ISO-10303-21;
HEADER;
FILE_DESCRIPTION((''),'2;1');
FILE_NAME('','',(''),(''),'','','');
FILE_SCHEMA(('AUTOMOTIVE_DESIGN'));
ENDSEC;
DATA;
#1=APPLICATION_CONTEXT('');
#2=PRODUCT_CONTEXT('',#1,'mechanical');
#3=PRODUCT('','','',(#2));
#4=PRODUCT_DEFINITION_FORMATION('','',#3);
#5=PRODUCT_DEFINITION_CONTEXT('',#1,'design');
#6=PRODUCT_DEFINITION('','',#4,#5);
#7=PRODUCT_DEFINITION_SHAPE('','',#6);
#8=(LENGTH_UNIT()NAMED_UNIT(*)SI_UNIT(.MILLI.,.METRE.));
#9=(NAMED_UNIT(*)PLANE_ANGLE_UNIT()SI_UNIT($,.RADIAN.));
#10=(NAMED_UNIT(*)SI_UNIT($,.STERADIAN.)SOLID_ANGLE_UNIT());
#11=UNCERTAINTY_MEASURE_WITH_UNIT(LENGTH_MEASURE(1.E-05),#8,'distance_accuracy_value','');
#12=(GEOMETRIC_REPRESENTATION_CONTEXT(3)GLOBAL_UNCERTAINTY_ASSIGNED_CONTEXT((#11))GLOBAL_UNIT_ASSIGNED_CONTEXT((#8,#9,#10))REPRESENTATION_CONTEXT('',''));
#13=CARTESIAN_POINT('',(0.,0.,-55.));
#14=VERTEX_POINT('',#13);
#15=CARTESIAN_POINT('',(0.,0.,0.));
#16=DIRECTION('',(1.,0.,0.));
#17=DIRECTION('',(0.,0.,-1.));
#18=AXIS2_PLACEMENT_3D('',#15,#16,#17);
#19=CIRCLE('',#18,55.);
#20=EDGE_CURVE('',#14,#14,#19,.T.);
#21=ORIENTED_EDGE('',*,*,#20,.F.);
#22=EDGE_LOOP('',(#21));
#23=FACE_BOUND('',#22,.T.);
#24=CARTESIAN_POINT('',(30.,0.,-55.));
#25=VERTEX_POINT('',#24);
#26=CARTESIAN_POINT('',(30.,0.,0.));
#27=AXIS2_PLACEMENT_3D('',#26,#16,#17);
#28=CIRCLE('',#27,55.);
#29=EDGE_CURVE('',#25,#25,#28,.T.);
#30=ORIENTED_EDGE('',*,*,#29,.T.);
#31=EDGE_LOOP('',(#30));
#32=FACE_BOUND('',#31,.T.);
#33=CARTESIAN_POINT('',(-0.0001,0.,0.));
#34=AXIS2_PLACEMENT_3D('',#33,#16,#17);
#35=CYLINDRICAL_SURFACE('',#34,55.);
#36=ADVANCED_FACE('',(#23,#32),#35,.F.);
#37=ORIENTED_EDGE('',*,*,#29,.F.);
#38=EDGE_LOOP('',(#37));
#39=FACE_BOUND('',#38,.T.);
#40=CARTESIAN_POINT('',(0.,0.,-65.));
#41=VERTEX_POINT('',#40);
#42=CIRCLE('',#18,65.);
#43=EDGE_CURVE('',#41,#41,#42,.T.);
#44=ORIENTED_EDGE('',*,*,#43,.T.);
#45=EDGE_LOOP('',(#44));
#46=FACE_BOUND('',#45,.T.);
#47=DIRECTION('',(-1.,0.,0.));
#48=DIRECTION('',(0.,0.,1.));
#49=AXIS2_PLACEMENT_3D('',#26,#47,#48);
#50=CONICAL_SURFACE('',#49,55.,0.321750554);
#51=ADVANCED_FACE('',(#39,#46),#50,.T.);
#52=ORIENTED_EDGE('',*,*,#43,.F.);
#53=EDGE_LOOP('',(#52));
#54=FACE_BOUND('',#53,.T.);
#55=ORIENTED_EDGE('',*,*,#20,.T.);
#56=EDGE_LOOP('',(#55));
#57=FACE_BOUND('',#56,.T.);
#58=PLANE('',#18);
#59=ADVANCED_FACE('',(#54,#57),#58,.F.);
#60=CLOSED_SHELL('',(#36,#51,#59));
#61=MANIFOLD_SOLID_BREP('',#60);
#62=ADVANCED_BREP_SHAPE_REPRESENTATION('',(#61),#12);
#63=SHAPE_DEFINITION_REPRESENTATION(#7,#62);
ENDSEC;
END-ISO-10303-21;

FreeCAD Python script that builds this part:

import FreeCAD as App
import Part
import Sketcher

doc = App.newDocument("Part")
params = doc.addObject("Spreadsheet::Sheet", "Params")
for row, (alias, value) in enumerate([
    ("sketch1_diameter", "130 mm"),
    ("sketch2_diameter", "110 mm"),
    ("sketch3_diameter", "110 mm"),
], start=1):
    params.set(f"A{row}", alias)
    params.set(f"B{row}", "=" + value)
    params.setAlias(f"B{row}", alias)

body = doc.addObject("PartDesign::Body", "Body")

# Sketch on YZ plane
sketch1 = body.newObject("Sketcher::SketchObject", "Sketch")
sketch1.AttachmentSupport = (doc.getObject("YZ_Plane"), [""])
sketch1.MapMode = "FlatFace"
sketch1.addGeometry(Part.Circle(App.Vector(0, 0, 0), App.Vector(0, 0, 1), 65), False)
sketch1.addConstraint(Sketcher.Constraint("Coincident", 0, 3, -1, 1))
sketch1.addConstraint(Sketcher.Constraint("Diameter", 0, 130.0))
sketch1.setExpression("Constraints[1]", "Params.sketch1_diameter")

# Sketch on YZ plane
sketch2 = body.newObject("Sketcher::SketchObject", "Sketch001")
sketch2.AttachmentSupport = (doc.getObject("YZ_Plane"), [""])
sketch2.MapMode = "FlatFace"
sketch2.AttachmentOffset = App.Placement(App.Vector(0, 0, 30), App.Rotation())
sketch2.addGeometry(Part.Circle(App.Vector(0, 0, 0), App.Vector(0, 0, 1), 55), False)
sketch2.addConstraint(Sketcher.Constraint("Coincident", 0, 3, -1, 1))
sketch2.addConstraint(Sketcher.Constraint("Diameter", 0, 110.0))
sketch2.setExpression("Constraints[1]", "Params.sketch2_diameter")

additiveloft = body.newObject("PartDesign::AdditiveLoft", "AdditiveLoft")
additiveloft.Profile = sketch1
additiveloft.Sections = [sketch2]

# Sketch on YZ plane
sketch3 = body.newObject("Sketcher::SketchObject", "Sketch002")
sketch3.AttachmentSupport = (doc.getObject("YZ_Plane"), [""])
sketch3.MapMode = "FlatFace"
sketch3.AttachmentOffset = App.Placement(App.Vector(0, 0, 30), App.Rotation())
sketch3.addGeometry(Part.Circle(App.Vector(0, 0, 0), App.Vector(0, 0, 1), 55), False)
sketch3.addConstraint(Sketcher.Constraint("Coincident", 0, 3, -1, 1))
sketch3.addConstraint(Sketcher.Constraint("Diameter", 0, 110.0))
sketch3.setExpression("Constraints[1]", "Params.sketch3_diameter")
pocket1 = body.newObject("PartDesign::Pocket", "Pocket")
pocket1.Profile = sketch3
pocket1.Type = "ThroughAll"

doc.recompute()
